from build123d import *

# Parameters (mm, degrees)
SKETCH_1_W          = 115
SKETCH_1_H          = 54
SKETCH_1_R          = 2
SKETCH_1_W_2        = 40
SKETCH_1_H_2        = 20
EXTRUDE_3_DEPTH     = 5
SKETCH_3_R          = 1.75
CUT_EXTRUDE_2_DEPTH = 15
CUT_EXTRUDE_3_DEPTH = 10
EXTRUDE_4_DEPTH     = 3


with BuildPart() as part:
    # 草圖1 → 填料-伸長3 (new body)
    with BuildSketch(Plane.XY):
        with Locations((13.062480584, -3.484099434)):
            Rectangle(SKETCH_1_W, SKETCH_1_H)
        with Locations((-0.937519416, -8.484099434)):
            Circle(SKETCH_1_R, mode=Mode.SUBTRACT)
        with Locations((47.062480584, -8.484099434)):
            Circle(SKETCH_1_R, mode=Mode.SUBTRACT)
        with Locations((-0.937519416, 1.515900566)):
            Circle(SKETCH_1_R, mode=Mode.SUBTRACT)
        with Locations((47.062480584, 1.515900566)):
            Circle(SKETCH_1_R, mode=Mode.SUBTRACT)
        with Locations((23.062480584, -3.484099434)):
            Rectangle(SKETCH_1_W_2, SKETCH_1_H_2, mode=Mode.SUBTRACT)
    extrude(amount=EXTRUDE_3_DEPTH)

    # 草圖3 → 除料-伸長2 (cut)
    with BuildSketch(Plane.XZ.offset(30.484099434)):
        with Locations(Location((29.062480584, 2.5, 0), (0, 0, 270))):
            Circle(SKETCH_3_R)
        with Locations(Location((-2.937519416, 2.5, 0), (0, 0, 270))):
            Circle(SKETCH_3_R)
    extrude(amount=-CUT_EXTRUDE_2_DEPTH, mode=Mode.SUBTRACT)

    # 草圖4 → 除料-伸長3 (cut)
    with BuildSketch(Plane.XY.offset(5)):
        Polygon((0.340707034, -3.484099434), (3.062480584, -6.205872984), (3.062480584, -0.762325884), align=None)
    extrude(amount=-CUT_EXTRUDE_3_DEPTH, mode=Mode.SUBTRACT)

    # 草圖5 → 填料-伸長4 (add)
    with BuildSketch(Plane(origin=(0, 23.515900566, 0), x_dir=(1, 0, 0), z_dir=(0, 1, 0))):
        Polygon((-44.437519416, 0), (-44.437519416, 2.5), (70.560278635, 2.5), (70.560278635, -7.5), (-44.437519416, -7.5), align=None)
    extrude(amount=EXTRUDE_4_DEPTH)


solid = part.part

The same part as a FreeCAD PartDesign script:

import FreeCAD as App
import Part
import Sketcher
from FreeCAD import Vector
Q = App.Units.Quantity

doc = App.newDocument("Part")
body = doc.addObject("PartDesign::Body", "Body")

# Sketch on XY plane
sketch1 = body.newObject("Sketcher::SketchObject", "Sketch")
sketch1.AttachmentSupport = (doc.getObject("XY_Plane"), [""])
sketch1.MapMode = "FlatFace"
sketch1.addGeometry([
    Part.LineSegment(Vector(-44.4, 23.5, 0), Vector(-44.4, -30.5, 0)),  # 0
    Part.LineSegment(Vector(-44.4, -30.5, 0), Vector(70.6, -30.5, 0)),  # 1
    Part.LineSegment(Vector(70.6, -30.5, 0), Vector(70.6, 23.5, 0)),  # 2
    Part.LineSegment(Vector(70.6, 23.5, 0), Vector(-44.4, 23.5, 0)),  # 3
    Part.Circle(Vector(-0.9, -8.5, 0), Vector(0, 0, 1), 2),  # 4
    Part.Circle(Vector(47.1, -8.5, 0), Vector(0, 0, 1), 2),  # 5
    Part.Circle(Vector(-0.9, 1.5, 0), Vector(0, 0, 1), 2),  # 6
    Part.LineSegment(Vector(43.1, -13.5, 0), Vector(3.1, -13.5, 0)),  # 7
    Part.LineSegment(Vector(3.1, -13.5, 0), Vector(3.1, 6.5, 0)),  # 8
    Part.LineSegment(Vector(3.1, 6.5, 0), Vector(43.1, 6.5, 0)),  # 9
    Part.LineSegment(Vector(43.1, 6.5, 0), Vector(43.1, -13.5, 0)),  # 10
    Part.Circle(Vector(47.1, 1.5, 0), Vector(0, 0, 1), 2),  # 11
], False)
sketch1.addConstraint([
    Sketcher.Constraint("Coincident", 0, 2, 1, 1),
    Sketcher.Constraint("Coincident", 1, 2, 2, 1),
    Sketcher.Constraint("Coincident", 2, 2, 3, 1),
    Sketcher.Constraint("Coincident", 3, 2, 0, 1),
    Sketcher.Constraint("Coincident", 7, 2, 8, 1),
    Sketcher.Constraint("Coincident", 8, 2, 9, 1),
    Sketcher.Constraint("Coincident", 9, 2, 10, 1),
    Sketcher.Constraint("Coincident", 10, 2, 7, 1),
    Sketcher.Constraint("Vertical", 0),
    Sketcher.Constraint("Horizontal", 1),
    Sketcher.Constraint("Vertical", 2),
    Sketcher.Constraint("Horizontal", 3),
    Sketcher.Constraint("Horizontal", 7),
    Sketcher.Constraint("Vertical", 8),
    Sketcher.Constraint("Horizontal", 9),
    Sketcher.Constraint("Vertical", 10),
    Sketcher.Constraint("Equal", 4, 5),
    Sketcher.Constraint("Equal", 5, 6),
    Sketcher.Constraint("Equal", 6, 11),
    Sketcher.Constraint("Horizontal", 4, 3, 5, 3),
    Sketcher.Constraint("Horizontal", 6, 3, 11, 3),
    Sketcher.Constraint("Vertical", 4, 3, 6, 3),
    Sketcher.Constraint("Vertical", 5, 3, 11, 3),
    Sketcher.Constraint("Diameter", 4, Q("4 mm")),
    Sketcher.Constraint("DistanceX", 1, 1, 1, 2, Q("115 mm")),
    Sketcher.Constraint("DistanceX", 7, 2, 7, 1, Q("40 mm")),
    Sketcher.Constraint("DistanceY", 0, 2, 0, 1, Q("54 mm")),
    Sketcher.Constraint("DistanceY", 8, 1, 8, 2, Q("20 mm")),
    Sketcher.Constraint("DistanceX", 4, 3, 5, 3, Q("48 mm")),
    Sketcher.Constraint("DistanceY", 4, 3, 6, 3, Q("10 mm")),
    Sketcher.Constraint("DistanceY", 0, 2, 4, 3, Q("22 mm")),
    Sketcher.Constraint("DistanceX", 4, 3, 7, 2, Q("4 mm")),
    Sketcher.Constraint("DistanceY", 7, 2, 4, 3, Q("5 mm")),
    Sketcher.Constraint("DistanceX", 0, 2, 4, 3, Q("43.5 mm")),
    Sketcher.Constraint("DistanceY", 4, 3, -1, 1, Q("8.484099 mm")),
    Sketcher.Constraint("DistanceX", 4, 3, -1, 1, Q("0.937519 mm")),
])
pad1 = body.newObject("PartDesign::Pad", "Pad")
pad1.Profile = sketch1
pad1.Length = 5

# Sketch on XZ plane
sketch2 = body.newObject("Sketcher::SketchObject", "Sketch001")
sketch2.AttachmentSupport = (doc.getObject("XZ_Plane"), [""])
sketch2.MapMode = "FlatFace"
sketch2.AttachmentOffset = App.Placement(Vector(0, 0, 30.484099), App.Rotation())
sketch2.addGeometry([
    Part.Circle(Vector(29.1, 2.5, 0), Vector(0, 0, 1), 1.8),
    Part.Circle(Vector(-2.9, 2.5, 0), Vector(0, 0, 1), 1.8),
], False)
sketch2.addConstraint([
    Sketcher.Constraint("Equal", 0, 1),
    Sketcher.Constraint("Horizontal", 0, 3, 1, 3),
    Sketcher.Constraint("Diameter", 0, Q("3.5 mm")),
    Sketcher.Constraint("DistanceX", 1, 3, 0, 3, Q("32 mm")),
    Sketcher.Constraint("DistanceY", -1, 1, 0, 3, Q("2.5 mm")),
    Sketcher.Constraint("DistanceX", -1, 1, 0, 3, Q("29.062481 mm")),
])
pocket1 = body.newObject("PartDesign::Pocket", "Pocket")
pocket1.Profile = sketch2
pocket1.Length = 15

# Sketch on XY plane
sketch3 = body.newObject("Sketcher::SketchObject", "Sketch002")
sketch3.AttachmentSupport = (doc.getObject("XY_Plane"), [""])
sketch3.MapMode = "FlatFace"
sketch3.AttachmentOffset = App.Placement(Vector(0, 0, 5), App.Rotation())
sketch3.addGeometry([
    Part.LineSegment(Vector(0.3, -3.5, 0), Vector(3.1, -6.2, 0)),
    Part.LineSegment(Vector(3.1, -6.2, 0), Vector(3.1, -0.8, 0)),
    Part.LineSegment(Vector(3.1, -0.8, 0), Vector(0.3, -3.5, 0)),
], False)
sketch3.addConstraint([
    Sketcher.Constraint("Coincident", 0, 2, 1, 1),
    Sketcher.Constraint("Coincident", 1, 2, 2, 1),
    Sketcher.Constraint("Coincident", 2, 2, 0, 1),
    Sketcher.Constraint("Vertical", 1),
    Sketcher.Constraint("Perpendicular", 0, 2),
    Sketcher.Constraint("Equal", 0, 2),
    Sketcher.Constraint("DistanceY", 2, 2, -1, 1, Q("3.484099 mm")),
    Sketcher.Constraint("Distance", 0, Q("3.849169 mm")),
    Sketcher.Constraint("DistanceX", -1, 1, 0, 2, Q("3.062481 mm")),
])
pocket2 = body.newObject("PartDesign::Pocket", "Pocket001")
pocket2.Profile = sketch3
pocket2.Length = 10

# Sketch on XZ plane
sketch4 = body.newObject("Sketcher::SketchObject", "Sketch003")
sketch4.AttachmentSupport = (doc.getObject("XZ_Plane"), [""])
sketch4.MapMode = "FlatFace"
sketch4.AttachmentOffset = App.Placement(Vector(0, 0, -23.515901), App.Rotation())
sketch4.addGeometry([
    Part.LineSegment(Vector(-44, -2, 0), Vector(-44, 8, 0)),
    Part.LineSegment(Vector(-44, 8, 0), Vector(71, 8, 0)),
    Part.LineSegment(Vector(71, 8, 0), Vector(71, -2, 0)),
    Part.LineSegment(Vector(71, -2, 0), Vector(-44, -2, 0)),
], False)
sketch4.addConstraint([
    Sketcher.Constraint("Coincident", 0, 2, 1, 1),
    Sketcher.Constraint("Coincident", 1, 2, 2, 1),
    Sketcher.Constraint("Coincident", 2, 2, 3, 1),
    Sketcher.Constraint("Coincident", 3, 2, 0, 1),
    Sketcher.Constraint("Vertical", 0),
    Sketcher.Constraint("Horizontal", 1),
    Sketcher.Constraint("Vertical", 2),
    Sketcher.Constraint("Horizontal", 3),
    Sketcher.Constraint("DistanceY", 0, 1, 0, 2, Q("10 mm")),
    Sketcher.Constraint("DistanceY", -1, 1, 0, 2, Q("7.5 mm")),
    Sketcher.Constraint("DistanceX", 1, 1, 1, 2, Q("114.997798 mm")),
    Sketcher.Constraint("DistanceX", 0, 2, -1, 1, Q("44.437519 mm")),
])
pad2 = body.newObject("PartDesign::Pad", "Pad001")
pad2.Profile = sketch4
pad2.Length = 3
pad2.Reversed = True

doc.recompute()
